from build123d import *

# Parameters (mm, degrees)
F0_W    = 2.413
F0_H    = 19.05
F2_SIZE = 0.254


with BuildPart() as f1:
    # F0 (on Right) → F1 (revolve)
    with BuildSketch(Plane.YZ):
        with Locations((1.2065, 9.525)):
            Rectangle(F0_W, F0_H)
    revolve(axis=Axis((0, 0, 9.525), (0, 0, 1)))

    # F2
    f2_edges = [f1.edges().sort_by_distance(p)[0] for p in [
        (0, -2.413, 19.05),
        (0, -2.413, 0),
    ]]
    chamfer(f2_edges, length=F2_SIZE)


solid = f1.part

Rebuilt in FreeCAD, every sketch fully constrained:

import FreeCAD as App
import Part
import Sketcher
Q = App.Units.Quantity


def edges_at(feature, points):
    """Names of the edges that pass closest to the given points."""
    edges = feature.Shape.Edges
    near = lambda p: min(range(len(edges)), key=lambda i: edges[i].distToShape(Part.Vertex(*p))[0])
    return sorted({f"Edge{near(p) + 1}" for p in points})

doc = App.newDocument("Part")
body = doc.addObject("PartDesign::Body", "Body")

sketch1 = doc.addObject("Sketcher::SketchObject", "Sketch")
body.addObject(sketch1)
sketch1.AttachmentSupport = (doc.YZ_Plane, [""])
sketch1.MapMode = "FlatFace"
sketch1.addGeometry([
    Part.LineSegment(App.Vector(0, 19.05, 0), App.Vector(0, 0, 0)),
    Part.LineSegment(App.Vector(0, 0, 0), App.Vector(2.413, 0, 0)),
    Part.LineSegment(App.Vector(2.413, 0, 0), App.Vector(2.413, 19.05, 0)),
    Part.LineSegment(App.Vector(2.413, 19.05, 0), App.Vector(0, 19.05, 0)),
], False)
sketch1.addConstraint([
    Sketcher.Constraint("Coincident", 0, 2, 1, 1),
    Sketcher.Constraint("Coincident", 1, 2, 2, 1),
    Sketcher.Constraint("Coincident", 2, 2, 3, 1),
    Sketcher.Constraint("Coincident", 3, 2, 0, 1),
    Sketcher.Constraint("Vertical", 0),
    Sketcher.Constraint("Horizontal", 1),
    Sketcher.Constraint("Vertical", 2),
    Sketcher.Constraint("Horizontal", 3),
    Sketcher.Constraint("Coincident", 0, 2, -1, 1),
    Sketcher.Constraint("DistanceY", 0, 2, 0, 1, Q("0.75 in")),
    Sketcher.Constraint("DistanceX", 1, 1, 1, 2, Q("0.095 in")),
])
revolution = doc.addObject("PartDesign::Revolution", "Revolution")
body.addObject(revolution)
revolution.Profile = sketch1
revolution.ReferenceAxis = (sketch1, ["V_Axis"])
revolution.Angle = 360
doc.recompute()

chamfer = doc.addObject("PartDesign::Chamfer", "Chamfer")
body.addObject(chamfer)
chamfer.Base = (revolution, edges_at(revolution, [(0, -2.413, 19.05), (0, -2.413, 0)]))
chamfer.Size = Q("0.01 in")

doc.recompute()
